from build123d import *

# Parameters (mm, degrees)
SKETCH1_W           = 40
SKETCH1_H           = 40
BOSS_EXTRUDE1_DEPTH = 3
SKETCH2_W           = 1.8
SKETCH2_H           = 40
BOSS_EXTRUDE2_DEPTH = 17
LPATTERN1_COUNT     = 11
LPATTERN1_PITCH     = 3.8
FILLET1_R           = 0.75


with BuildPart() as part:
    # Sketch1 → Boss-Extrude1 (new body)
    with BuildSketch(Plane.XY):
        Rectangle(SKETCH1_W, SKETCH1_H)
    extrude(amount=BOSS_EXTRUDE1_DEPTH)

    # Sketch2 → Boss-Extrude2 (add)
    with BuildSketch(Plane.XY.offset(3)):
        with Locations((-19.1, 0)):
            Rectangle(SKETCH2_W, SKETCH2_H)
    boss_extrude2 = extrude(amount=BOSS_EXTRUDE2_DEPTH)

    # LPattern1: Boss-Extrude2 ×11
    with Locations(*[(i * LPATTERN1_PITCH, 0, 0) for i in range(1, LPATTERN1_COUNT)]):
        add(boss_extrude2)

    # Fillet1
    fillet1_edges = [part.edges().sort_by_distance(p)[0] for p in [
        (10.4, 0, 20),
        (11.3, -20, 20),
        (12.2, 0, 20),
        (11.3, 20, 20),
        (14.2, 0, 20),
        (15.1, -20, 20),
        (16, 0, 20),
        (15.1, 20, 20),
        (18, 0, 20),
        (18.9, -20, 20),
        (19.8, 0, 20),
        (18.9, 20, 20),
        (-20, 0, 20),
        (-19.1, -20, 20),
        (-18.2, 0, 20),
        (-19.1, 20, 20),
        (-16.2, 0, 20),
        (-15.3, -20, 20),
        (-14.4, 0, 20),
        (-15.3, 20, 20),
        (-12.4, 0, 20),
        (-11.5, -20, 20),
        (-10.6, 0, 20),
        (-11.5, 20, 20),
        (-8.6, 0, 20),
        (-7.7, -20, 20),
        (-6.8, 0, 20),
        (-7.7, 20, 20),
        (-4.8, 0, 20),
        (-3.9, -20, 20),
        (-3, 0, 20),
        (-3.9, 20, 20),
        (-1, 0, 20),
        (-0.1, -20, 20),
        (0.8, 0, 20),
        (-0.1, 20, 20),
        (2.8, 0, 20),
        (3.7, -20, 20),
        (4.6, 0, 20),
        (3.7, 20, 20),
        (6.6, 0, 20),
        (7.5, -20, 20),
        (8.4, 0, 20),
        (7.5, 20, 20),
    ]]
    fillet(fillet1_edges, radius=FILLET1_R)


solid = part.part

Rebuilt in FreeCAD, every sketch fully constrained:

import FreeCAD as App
import Part
import Sketcher


def edges_at(feature, points):
    """Names of the edges that pass closest to the given points."""
    edges = feature.Shape.Edges
    near = lambda p: min(range(len(edges)), key=lambda i: edges[i].distToShape(Part.Vertex(*p))[0])
    return sorted({f"Edge{near(p) + 1}" for p in points})


def add_polygon(sketch, points):
    """Adds a closed chain of lines whose ends are joined by coincident constraints."""
    first, n = sketch.GeometryCount, len(points)
    for a, b in zip(points, points[1:] + points[:1]):
        sketch.addGeometry(Part.LineSegment(App.Vector(*a, 0), App.Vector(*b, 0)), False)
    for i in range(n):
        sketch.addConstraint(Sketcher.Constraint("Coincident", first + i, 2, first + (i + 1) % n, 1))

doc = App.newDocument("Part")
params = doc.addObject("Spreadsheet::Sheet", "Params")
for row, (alias, value) in enumerate([
    ("sketch1_width", "40 mm"),
    ("pad1_length", "3 mm"),
    ("sketch2_height", "40 mm"),
    ("sketch2_width", "1.8 mm"),
    ("pad2_length", "17 mm"),
    ("linearpattern_pitch", "3.8 mm"),
    ("fillet_radius", "0.75 mm"),
], start=1):
    params.set(f"A{row}", alias)
    params.set(f"B{row}", "=" + value)
    params.setAlias(f"B{row}", alias)

body = doc.addObject("PartDesign::Body", "Body")

# Sketch on XY plane
sketch1 = body.newObject("Sketcher::SketchObject", "Sketch")
sketch1.AttachmentSupport = (doc.getObject("XY_Plane"), [""])
sketch1.MapMode = "FlatFace"
add_polygon(sketch1, [(-20, 20), (-20, -20), (20, -20), (20, 20)])  # lines 0-3
sketch1.addConstraint(Sketcher.Constraint("Vertical", 0))
sketch1.addConstraint(Sketcher.Constraint("Horizontal", 1))
sketch1.addConstraint(Sketcher.Constraint("Vertical", 2))
sketch1.addConstraint(Sketcher.Constraint("Horizontal", 3))
sketch1.addConstraint(Sketcher.Constraint("Symmetric", 0, 2, 2, 2, -1, 1))
sketch1.addConstraint(Sketcher.Constraint("Equal", 3, 0))
sketch1.addConstraint(Sketcher.Constraint("DistanceX", 1, 1, 1, 2, 40.0))
sketch1.setExpression("Constraints[10]", "Params.sketch1_width")
pad1 = body.newObject("PartDesign::Pad", "Pad")
pad1.Profile = sketch1
pad1.setExpression("Length", "Params.pad1_length")

# Sketch on XY plane
sketch2 = body.newObject("Sketcher::SketchObject", "Sketch001")
sketch2.AttachmentSupport = (doc.getObject("XY_Plane"), [""])
sketch2.MapMode = "FlatFace"
sketch2.AttachmentOffset = App.Placement(App.Vector(0, 0, 3), App.Rotation())
add_polygon(sketch2, [(-20, 20), (-20, -20), (-18.2, -20), (-18.2, 20)])  # lines 0-3
sketch2.addConstraint(Sketcher.Constraint("Vertical", 0))
sketch2.addConstraint(Sketcher.Constraint("Horizontal", 1))
sketch2.addConstraint(Sketcher.Constraint("Vertical", 2))
sketch2.addConstraint(Sketcher.Constraint("Horizontal", 3))
sketch2.addConstraint(Sketcher.Constraint("DistanceY", 0, 2, 0, 1, 40.0))
sketch2.addConstraint(Sketcher.Constraint("DistanceX", 1, 1, 1, 2, 1.8))
sketch2.addConstraint(Sketcher.Constraint("DistanceX", 0, 2, -1, 1, 20.0))
sketch2.addConstraint(Sketcher.Constraint("DistanceY", 0, 2, -1, 1, 20.0))
sketch2.setExpression("Constraints[8]", "Params.sketch2_height")
sketch2.setExpression("Constraints[9]", "Params.sketch2_width")
pad2 = body.newObject("PartDesign::Pad", "Pad001")
pad2.Profile = sketch2
pad2.setExpression("Length", "Params.pad2_length")
doc.recompute()

linearpattern = body.newObject("PartDesign::LinearPattern", "LinearPattern")
linearpattern.Originals = [pad2]
linearpattern.Direction = (doc.getObject("X_Axis"), [""])
linearpattern.Mode = "offset"
linearpattern.setExpression("Offset", "Params.linearpattern_pitch")
linearpattern.Occurrences = 11
body.Tip = linearpattern
doc.recompute()

fillet = body.newObject("PartDesign::Fillet", "Fillet")
fillet.Base = (linearpattern, edges_at(linearpattern, [
    (10.4, 0, 20),
    (11.3, -20, 20),
    (12.2, 0, 20),
    (11.3, 20, 20),
    (14.2, 0, 20),
    (15.1, -20, 20),
    (16, 0, 20),
    (15.1, 20, 20),
    (18, 0, 20),
    (18.9, -20, 20),
    (19.8, 0, 20),
    (18.9, 20, 20),
    (-20, 0, 20),
    (-19.1, -20, 20),
    (-18.2, 0, 20),
    (-19.1, 20, 20),
    (-16.2, 0, 20),
    (-15.3, -20, 20),
    (-14.4, 0, 20),
    (-15.3, 20, 20),
    (-12.4, 0, 20),
    (-11.5, -20, 20),
    (-10.6, 0, 20),
    (-11.5, 20, 20),
    (-8.6, 0, 20),
    (-7.7, -20, 20),
    (-6.8, 0, 20),
    (-7.7, 20, 20),
    (-4.8, 0, 20),
    (-3.9, -20, 20),
    (-3, 0, 20),
    (-3.9, 20, 20),
    (-1, 0, 20),
    (-0.1, -20, 20),
    (0.8, 0, 20),
    (-0.1, 20, 20),
    (2.8, 0, 20),
    (3.7, -20, 20),
    (4.6, 0, 20),
    (3.7, 20, 20),
    (6.6, 0, 20),
    (7.5, -20, 20),
    (8.4, 0, 20),
    (7.5, 20, 20),
]))
fillet.setExpression("Radius", "Params.fillet_radius")

doc.recompute()
